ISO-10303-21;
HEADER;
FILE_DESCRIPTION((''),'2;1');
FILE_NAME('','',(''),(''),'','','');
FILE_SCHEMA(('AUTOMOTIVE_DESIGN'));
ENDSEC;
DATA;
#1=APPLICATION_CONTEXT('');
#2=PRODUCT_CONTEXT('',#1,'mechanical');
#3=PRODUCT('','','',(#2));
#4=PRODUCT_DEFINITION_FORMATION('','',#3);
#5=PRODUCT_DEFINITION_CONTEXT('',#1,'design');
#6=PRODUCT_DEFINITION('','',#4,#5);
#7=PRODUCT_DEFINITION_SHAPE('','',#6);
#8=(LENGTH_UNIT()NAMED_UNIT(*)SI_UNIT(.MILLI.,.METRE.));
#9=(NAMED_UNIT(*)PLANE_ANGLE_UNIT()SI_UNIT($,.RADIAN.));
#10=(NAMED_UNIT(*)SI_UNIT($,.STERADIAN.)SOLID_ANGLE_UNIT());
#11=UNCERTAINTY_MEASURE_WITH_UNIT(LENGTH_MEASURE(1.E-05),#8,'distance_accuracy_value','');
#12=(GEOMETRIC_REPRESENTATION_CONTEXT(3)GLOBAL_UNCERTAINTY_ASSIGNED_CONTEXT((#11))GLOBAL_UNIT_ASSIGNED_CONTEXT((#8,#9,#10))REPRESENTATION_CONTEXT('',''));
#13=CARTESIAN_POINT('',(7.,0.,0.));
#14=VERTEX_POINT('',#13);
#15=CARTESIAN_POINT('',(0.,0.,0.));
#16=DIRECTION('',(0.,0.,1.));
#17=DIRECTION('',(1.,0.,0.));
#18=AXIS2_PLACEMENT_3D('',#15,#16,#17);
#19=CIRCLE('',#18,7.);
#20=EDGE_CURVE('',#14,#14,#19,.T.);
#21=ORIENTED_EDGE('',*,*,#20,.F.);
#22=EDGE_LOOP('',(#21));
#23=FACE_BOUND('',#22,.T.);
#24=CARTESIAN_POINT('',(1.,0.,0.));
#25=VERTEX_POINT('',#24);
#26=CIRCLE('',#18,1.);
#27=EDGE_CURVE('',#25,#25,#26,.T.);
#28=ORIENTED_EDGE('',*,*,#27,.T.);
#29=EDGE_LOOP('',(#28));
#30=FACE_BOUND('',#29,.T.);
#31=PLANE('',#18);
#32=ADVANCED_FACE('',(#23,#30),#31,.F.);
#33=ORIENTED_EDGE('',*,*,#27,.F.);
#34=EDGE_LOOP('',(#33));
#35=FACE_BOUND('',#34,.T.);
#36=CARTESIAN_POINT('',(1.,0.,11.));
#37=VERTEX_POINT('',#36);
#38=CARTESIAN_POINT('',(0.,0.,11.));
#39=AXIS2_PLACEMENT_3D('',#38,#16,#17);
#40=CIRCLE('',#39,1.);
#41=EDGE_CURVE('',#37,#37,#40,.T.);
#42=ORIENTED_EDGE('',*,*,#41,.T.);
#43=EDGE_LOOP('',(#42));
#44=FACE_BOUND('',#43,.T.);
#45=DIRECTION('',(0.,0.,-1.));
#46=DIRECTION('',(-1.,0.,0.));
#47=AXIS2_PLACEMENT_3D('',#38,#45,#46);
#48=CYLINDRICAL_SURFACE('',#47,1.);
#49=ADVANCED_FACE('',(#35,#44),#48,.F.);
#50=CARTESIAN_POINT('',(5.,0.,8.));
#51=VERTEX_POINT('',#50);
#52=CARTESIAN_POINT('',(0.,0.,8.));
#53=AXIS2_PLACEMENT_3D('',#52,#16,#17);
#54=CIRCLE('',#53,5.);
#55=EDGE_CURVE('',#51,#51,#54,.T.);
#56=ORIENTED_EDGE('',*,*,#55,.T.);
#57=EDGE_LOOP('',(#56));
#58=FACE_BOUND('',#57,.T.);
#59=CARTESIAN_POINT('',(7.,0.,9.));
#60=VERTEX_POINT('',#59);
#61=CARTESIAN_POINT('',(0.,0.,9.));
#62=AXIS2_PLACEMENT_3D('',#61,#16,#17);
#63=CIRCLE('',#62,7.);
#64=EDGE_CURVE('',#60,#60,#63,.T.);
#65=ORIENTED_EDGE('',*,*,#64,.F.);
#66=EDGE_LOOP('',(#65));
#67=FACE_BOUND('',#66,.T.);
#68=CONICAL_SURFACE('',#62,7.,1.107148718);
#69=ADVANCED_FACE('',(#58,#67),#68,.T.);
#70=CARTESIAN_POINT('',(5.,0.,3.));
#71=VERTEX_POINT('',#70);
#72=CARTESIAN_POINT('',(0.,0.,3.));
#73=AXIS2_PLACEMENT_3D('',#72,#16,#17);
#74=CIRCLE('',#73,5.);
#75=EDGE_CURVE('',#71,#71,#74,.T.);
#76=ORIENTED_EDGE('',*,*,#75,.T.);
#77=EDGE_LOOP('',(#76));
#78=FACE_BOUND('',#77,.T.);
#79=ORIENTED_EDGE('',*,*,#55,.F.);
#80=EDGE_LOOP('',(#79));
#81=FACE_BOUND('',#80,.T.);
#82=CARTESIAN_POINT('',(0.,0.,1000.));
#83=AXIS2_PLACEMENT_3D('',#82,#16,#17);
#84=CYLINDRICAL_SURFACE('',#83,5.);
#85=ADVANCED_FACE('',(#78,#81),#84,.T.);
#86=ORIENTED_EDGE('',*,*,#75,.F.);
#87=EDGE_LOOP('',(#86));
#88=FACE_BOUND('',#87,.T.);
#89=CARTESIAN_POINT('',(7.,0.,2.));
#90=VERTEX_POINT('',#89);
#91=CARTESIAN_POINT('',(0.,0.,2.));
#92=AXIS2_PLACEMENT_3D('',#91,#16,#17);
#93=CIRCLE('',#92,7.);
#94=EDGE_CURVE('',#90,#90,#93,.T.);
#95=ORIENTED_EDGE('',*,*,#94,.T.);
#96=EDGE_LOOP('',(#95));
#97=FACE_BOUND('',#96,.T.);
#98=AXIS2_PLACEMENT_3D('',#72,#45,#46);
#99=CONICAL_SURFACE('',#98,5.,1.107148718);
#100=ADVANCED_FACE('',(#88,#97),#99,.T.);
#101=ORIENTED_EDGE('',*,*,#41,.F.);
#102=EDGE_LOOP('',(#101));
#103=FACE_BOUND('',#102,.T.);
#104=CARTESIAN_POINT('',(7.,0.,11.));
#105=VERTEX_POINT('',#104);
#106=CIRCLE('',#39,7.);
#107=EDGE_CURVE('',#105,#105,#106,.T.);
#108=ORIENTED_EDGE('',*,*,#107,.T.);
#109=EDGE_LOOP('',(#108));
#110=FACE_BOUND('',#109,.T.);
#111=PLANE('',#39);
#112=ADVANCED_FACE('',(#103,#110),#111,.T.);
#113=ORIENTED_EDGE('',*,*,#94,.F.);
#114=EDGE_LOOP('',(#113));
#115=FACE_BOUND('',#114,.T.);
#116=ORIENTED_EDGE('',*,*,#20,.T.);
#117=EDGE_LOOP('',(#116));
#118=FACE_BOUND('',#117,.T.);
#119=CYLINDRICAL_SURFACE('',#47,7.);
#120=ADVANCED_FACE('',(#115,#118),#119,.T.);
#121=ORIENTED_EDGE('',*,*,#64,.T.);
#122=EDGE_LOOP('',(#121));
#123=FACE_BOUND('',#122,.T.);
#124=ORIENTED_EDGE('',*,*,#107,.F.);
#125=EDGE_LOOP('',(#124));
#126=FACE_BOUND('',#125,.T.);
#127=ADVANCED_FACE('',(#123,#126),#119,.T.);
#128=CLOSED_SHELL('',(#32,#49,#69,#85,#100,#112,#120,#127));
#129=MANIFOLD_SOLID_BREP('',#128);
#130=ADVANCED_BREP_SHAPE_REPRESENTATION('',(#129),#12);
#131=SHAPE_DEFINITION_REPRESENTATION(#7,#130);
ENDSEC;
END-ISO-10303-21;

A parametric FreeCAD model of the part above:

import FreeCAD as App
import Part
import Sketcher

doc = App.newDocument("Part")
body = doc.addObject("PartDesign::Body", "Body")

# Sketch on XY plane
sketch1 = doc.addObject("Sketcher::SketchObject", "Sketch")
body.addObject(sketch1)
sketch1.AttachmentSupport = (doc.XY_Plane, [""])
sketch1.MapMode = "FlatFace"
sketch1.addGeometry(Part.Circle(App.Vector(0, 0, 0), App.Vector(0, 0, 1), 7), False)
sketch1.addGeometry(Part.Circle(App.Vector(0, 0, 0), App.Vector(0, 0, 1), 1), False)
sketch1.addConstraint(Sketcher.Constraint("Coincident", 0, 3, -1, 1))
sketch1.addConstraint(Sketcher.Constraint("Coincident", 1, 3, -1, 1))
sketch1.addConstraint(Sketcher.Constraint("Diameter", 0, 14.0))
sketch1.addConstraint(Sketcher.Constraint("Diameter", 1, 2.0))
pad1 = doc.addObject("PartDesign::Pad", "Pad")
body.addObject(pad1)
pad1.Profile = sketch1
pad1.Length = 11

# Sketch on YZ plane
sketch2 = doc.addObject("Sketcher::SketchObject", "Sketch001")
body.addObject(sketch2)
sketch2.AttachmentSupport = (doc.YZ_Plane, [""])
sketch2.MapMode = "FlatFace"
sketch2.addGeometry(Part.LineSegment(App.Vector(5, 3, 0), App.Vector(7, 2, 0)), False)
sketch2.addGeometry(Part.LineSegment(App.Vector(7, 2, 0), App.Vector(7, 9, 0)), False)
sketch2.addGeometry(Part.LineSegment(App.Vector(7, 9, 0), App.Vector(5, 8, 0)), False)
sketch2.addGeometry(Part.LineSegment(App.Vector(5, 8, 0), App.Vector(5, 3, 0)), False)
sketch2.addConstraint(Sketcher.Constraint("Coincident", 0, 2, 1, 1))
sketch2.addConstraint(Sketcher.Constraint("Coincident", 1, 2, 2, 1))
sketch2.addConstraint(Sketcher.Constraint("Coincident", 2, 2, 3, 1))
sketch2.addConstraint(Sketcher.Constraint("Coincident", 3, 2, 0, 1))
sketch2.addConstraint(Sketcher.Constraint("Vertical", 1))
sketch2.addConstraint(Sketcher.Constraint("Vertical", 3))
sketch2.addConstraint(Sketcher.Constraint("Equal", 0, 2))
sketch2.addConstraint(Sketcher.Constraint("DistanceY", 1, 1, 1, 2, 7.0))
sketch2.addConstraint(Sketcher.Constraint("DistanceY", 3, 2, 3, 1, 5.0))
sketch2.addConstraint(Sketcher.Constraint("DistanceX", -1, 1, 0, 2, 7.0))
sketch2.addConstraint(Sketcher.Constraint("DistanceY", -1, 1, 0, 2, 2.0))
sketch2.addConstraint(Sketcher.Constraint("DistanceX", -1, 1, 2, 2, 5.0))
groove = doc.addObject("PartDesign::Groove", "Groove")
body.addObject(groove)
groove.Profile = sketch2
groove.ReferenceAxis = (sketch2, ["V_Axis"])
groove.Angle = 360

doc.recompute()
